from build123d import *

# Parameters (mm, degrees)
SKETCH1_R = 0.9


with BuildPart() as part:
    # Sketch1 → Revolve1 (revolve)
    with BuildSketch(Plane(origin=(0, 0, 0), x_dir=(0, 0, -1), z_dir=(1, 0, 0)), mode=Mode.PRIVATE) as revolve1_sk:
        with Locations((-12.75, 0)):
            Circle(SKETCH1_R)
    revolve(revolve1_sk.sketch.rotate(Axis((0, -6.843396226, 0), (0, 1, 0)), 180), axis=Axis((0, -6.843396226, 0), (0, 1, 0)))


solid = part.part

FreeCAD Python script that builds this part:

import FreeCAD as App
import Part
import Sketcher
Q = App.Units.Quantity

doc = App.newDocument("Part")
body = doc.addObject("PartDesign::Body", "Body")

# Sketch on YZ plane
sketch1 = body.newObject("Sketcher::SketchObject", "Sketch")
sketch1.AttachmentSupport = (doc.getObject("YZ_Plane"), [""])
sketch1.MapMode = "FlatFace"
sketch1.addGeometry(Part.Circle(App.Vector(0, 12.75, 0), App.Vector(0, 0, 1), 0.9), False)
sketch1.addConstraint([
    Sketcher.Constraint("PointOnObject", 0, 3, -2),
    Sketcher.Constraint("Diameter", 0, Q("1.8 mm")),
    Sketcher.Constraint("DistanceY", -1, 1, 0, 3, Q("12.75 mm")),
])
revolution = body.newObject("PartDesign::Revolution", "Revolution")
revolution.Profile = sketch1
revolution.ReferenceAxis = (sketch1, ["H_Axis"])
revolution.Angle = 360

doc.recompute()
